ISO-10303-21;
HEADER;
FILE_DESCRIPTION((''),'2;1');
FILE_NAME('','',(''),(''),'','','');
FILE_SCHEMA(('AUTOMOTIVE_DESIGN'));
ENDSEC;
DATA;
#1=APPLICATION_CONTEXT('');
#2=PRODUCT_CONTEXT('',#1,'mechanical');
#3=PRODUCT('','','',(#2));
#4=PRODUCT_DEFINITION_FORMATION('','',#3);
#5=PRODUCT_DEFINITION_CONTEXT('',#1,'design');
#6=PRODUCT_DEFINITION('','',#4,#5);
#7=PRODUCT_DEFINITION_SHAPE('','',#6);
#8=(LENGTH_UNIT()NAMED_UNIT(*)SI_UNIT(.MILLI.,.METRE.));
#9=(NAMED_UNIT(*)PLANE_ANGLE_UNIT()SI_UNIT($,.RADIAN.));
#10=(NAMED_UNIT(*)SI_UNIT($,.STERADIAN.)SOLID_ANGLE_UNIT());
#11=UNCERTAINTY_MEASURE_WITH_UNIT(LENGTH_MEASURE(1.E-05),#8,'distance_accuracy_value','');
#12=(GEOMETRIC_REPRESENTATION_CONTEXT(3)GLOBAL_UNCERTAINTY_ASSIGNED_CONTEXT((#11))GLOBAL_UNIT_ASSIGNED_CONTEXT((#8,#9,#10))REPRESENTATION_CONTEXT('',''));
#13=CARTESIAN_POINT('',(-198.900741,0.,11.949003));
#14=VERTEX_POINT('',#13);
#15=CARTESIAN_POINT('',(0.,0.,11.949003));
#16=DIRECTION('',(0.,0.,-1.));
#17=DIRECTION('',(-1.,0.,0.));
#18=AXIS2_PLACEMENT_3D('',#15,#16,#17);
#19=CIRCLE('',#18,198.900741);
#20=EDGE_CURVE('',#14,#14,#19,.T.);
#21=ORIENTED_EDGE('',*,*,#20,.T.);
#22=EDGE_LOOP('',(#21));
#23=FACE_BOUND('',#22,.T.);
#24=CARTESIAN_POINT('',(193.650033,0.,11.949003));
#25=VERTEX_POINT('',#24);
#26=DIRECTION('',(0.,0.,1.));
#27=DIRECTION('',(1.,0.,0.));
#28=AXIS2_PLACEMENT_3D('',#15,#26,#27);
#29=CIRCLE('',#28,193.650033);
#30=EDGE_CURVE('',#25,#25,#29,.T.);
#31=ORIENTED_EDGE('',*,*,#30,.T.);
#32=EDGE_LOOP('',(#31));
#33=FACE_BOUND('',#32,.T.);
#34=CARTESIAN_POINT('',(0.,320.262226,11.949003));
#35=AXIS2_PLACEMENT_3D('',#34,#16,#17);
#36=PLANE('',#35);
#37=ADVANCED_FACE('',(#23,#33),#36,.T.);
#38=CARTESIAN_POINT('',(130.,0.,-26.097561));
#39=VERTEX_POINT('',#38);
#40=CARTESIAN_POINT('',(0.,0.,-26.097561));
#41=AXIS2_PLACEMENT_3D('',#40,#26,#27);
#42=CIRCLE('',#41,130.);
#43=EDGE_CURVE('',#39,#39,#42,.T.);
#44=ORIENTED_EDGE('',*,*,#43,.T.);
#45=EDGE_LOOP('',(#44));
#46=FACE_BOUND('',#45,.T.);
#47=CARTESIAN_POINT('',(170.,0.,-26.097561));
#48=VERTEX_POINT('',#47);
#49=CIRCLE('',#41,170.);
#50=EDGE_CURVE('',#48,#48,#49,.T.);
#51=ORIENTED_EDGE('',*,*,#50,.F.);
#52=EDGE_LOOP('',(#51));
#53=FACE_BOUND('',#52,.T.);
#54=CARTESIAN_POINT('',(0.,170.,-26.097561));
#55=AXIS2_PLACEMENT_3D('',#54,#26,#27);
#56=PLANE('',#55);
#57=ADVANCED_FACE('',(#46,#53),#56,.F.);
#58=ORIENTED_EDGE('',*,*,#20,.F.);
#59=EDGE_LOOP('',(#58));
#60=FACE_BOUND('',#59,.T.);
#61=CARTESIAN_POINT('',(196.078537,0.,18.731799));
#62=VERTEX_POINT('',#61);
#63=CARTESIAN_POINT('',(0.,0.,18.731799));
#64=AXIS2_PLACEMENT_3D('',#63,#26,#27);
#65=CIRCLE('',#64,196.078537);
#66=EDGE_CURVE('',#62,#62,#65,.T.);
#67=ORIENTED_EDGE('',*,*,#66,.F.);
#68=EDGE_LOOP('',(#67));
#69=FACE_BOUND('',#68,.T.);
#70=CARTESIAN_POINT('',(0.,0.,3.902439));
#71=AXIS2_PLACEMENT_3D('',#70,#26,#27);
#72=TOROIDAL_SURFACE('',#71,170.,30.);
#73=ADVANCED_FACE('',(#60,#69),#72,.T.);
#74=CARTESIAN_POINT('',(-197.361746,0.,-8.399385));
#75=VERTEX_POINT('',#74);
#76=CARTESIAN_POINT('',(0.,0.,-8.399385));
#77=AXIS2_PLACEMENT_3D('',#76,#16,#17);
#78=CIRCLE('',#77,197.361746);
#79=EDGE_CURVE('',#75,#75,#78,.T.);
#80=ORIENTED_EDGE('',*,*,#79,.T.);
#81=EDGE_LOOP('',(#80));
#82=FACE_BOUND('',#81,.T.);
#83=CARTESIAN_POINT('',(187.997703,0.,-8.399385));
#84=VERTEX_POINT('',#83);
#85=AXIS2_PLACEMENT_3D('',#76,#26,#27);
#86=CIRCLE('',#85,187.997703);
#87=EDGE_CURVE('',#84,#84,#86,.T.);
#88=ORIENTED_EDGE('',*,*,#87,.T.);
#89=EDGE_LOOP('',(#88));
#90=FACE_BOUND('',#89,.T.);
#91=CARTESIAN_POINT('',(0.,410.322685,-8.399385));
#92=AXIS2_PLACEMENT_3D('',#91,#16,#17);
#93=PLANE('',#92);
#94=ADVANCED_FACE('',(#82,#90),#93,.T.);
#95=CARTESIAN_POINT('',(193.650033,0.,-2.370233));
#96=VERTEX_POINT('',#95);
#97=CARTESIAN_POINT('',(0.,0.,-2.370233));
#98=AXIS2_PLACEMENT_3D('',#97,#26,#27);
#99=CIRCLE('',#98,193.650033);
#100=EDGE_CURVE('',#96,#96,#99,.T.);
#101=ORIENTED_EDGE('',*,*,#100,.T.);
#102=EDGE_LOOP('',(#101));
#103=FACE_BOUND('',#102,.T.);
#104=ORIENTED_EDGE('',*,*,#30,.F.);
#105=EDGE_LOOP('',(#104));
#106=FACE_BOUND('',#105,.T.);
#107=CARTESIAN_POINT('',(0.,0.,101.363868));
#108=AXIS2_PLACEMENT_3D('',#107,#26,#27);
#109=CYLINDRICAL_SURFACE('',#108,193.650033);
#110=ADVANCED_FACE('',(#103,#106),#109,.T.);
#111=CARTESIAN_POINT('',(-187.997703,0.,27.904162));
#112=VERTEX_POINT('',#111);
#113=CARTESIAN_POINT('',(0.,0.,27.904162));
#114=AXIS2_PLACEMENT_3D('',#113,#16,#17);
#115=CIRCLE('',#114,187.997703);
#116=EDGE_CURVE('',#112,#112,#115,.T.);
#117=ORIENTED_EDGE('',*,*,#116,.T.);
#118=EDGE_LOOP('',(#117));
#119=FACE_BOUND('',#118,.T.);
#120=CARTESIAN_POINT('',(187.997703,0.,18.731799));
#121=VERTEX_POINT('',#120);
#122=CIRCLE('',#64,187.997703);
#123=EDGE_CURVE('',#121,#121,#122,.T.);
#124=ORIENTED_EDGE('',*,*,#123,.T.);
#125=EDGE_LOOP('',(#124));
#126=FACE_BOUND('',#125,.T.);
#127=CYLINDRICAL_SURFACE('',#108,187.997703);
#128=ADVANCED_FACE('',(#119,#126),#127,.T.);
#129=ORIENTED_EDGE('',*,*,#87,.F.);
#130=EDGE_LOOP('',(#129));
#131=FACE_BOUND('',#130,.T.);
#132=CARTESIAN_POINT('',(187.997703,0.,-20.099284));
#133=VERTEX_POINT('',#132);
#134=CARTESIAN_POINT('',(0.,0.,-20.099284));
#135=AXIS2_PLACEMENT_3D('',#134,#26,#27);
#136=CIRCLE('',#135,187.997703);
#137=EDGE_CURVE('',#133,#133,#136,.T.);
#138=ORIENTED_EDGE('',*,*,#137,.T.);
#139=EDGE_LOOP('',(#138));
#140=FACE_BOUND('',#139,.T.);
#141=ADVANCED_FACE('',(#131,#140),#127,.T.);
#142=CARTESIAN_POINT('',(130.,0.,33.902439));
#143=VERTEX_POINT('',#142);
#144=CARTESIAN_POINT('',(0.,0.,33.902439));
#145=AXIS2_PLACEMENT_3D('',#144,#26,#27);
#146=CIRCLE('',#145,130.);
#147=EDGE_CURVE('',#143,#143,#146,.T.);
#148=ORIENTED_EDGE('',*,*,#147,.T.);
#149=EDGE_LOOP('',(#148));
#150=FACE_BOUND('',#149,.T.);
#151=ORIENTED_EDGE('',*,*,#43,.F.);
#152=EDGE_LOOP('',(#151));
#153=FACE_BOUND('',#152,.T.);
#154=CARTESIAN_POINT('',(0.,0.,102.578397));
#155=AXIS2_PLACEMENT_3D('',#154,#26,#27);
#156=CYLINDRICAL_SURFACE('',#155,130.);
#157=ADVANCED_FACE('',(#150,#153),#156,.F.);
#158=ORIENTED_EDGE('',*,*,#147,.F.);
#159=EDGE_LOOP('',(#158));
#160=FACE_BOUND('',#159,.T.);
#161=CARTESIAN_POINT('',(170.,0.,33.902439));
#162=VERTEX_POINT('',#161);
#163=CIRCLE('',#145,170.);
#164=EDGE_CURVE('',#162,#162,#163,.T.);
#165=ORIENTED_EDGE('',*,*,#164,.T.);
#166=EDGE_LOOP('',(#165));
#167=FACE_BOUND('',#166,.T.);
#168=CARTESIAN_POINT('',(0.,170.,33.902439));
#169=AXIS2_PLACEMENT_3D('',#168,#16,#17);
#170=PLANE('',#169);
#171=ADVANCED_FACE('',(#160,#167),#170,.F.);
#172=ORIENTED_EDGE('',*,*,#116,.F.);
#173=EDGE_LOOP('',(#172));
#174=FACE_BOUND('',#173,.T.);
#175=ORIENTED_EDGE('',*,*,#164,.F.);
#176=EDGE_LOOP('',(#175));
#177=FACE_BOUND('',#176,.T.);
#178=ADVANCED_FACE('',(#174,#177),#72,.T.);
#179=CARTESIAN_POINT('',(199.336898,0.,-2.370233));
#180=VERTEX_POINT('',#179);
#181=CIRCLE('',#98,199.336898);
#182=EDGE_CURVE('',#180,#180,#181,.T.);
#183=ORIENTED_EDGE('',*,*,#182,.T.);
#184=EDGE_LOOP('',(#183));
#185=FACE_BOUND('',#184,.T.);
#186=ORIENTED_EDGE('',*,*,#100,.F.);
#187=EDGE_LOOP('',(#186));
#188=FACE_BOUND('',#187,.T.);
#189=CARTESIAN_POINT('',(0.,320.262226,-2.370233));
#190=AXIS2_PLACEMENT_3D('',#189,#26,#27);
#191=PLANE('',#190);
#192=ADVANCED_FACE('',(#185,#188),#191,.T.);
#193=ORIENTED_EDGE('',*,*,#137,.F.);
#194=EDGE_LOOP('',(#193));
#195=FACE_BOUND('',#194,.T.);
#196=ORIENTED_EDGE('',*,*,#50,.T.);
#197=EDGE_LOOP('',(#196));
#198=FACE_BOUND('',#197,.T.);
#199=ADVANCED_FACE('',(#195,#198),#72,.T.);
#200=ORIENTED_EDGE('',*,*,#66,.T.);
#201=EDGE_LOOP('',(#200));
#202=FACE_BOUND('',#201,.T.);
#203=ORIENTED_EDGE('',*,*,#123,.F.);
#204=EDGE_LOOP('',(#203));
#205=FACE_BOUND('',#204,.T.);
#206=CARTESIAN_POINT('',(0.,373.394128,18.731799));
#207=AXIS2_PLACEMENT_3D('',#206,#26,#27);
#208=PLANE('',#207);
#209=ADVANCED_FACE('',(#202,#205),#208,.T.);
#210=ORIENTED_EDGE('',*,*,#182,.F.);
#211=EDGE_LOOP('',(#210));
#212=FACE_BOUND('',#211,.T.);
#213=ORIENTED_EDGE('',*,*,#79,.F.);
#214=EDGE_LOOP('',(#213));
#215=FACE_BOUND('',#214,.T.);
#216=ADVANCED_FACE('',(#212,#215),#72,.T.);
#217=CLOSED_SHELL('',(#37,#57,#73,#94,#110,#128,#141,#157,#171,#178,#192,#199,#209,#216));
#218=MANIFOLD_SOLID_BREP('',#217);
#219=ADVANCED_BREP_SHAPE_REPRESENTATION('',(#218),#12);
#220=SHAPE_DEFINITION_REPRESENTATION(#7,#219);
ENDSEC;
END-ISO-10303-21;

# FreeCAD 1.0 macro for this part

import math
import FreeCAD as App
import Part
import Sketcher
from FreeCAD import Vector
Q = App.Units.Quantity


def add_polygon(sketch, points):
    """Adds a closed chain of lines whose ends are joined by coincident constraints."""
    first, n = sketch.GeometryCount, len(points)
    for a, b in zip(points, points[1:] + points[:1]):
        sketch.addGeometry(Part.LineSegment(App.Vector(*a, 0), App.Vector(*b, 0)), False)
    for i in range(n):
        sketch.addConstraint(Sketcher.Constraint("Coincident", first + i, 2, first + (i + 1) % n, 1))

doc = App.newDocument("Part")
body = doc.addObject("PartDesign::Body", "Body")

# Sketch on YZ plane
sketch1 = doc.addObject("Sketcher::SketchObject", "Sketch")
body.addObject(sketch1)
sketch1.AttachmentSupport = (doc.YZ_Plane, [""])
sketch1.MapMode = "FlatFace"
sketch1.addGeometry(Part.LineSegment(Vector(170, 34, 0), Vector(130, 34, 0)), False)
sketch1.addGeometry(Part.LineSegment(Vector(130, 34, 0), Vector(130, -26, 0)), False)
sketch1.addGeometry(Part.LineSegment(Vector(130, -26, 0), Vector(170, -26, 0)), False)
sketch1.addGeometry(Part.ArcOfCircle(Part.Circle(Vector(170, 4, 0), Vector(0, 0, 1), 30), math.radians(-90), math.radians(90)), False)
sketch1.addConstraint(Sketcher.Constraint("Coincident", 0, 2, 1, 1))
sketch1.addConstraint(Sketcher.Constraint("Coincident", 1, 2, 2, 1))
sketch1.addConstraint(Sketcher.Constraint("Tangent", 2, 2, 3, 1))
sketch1.addConstraint(Sketcher.Constraint("Tangent", 3, 2, 0, 1))
sketch1.addConstraint(Sketcher.Constraint("Horizontal", 0))
sketch1.addConstraint(Sketcher.Constraint("Vertical", 1))
sketch1.addConstraint(Sketcher.Constraint("Horizontal", 2))
sketch1.addConstraint(Sketcher.Constraint("Radius", 3, Q("30 mm")))
sketch1.addConstraint(Sketcher.Constraint("DistanceX", 0, 2, 0, 1, Q("40 mm")))
sketch1.addConstraint(Sketcher.Constraint("DistanceX", -1, 1, 3, 3, Q("170 mm")))
sketch1.addConstraint(Sketcher.Constraint("DistanceY", -1, 1, 3, 3, Q("3.902439 mm")))
revolution = doc.addObject("PartDesign::Revolution", "Revolution")
body.addObject(revolution)
revolution.Profile = sketch1
revolution.ReferenceAxis = (sketch1, ["V_Axis"])
revolution.Angle = 360

# Sketch on YZ plane
sketch2 = doc.addObject("Sketcher::SketchObject", "Sketch001")
body.addObject(sketch2)
sketch2.AttachmentSupport = (doc.YZ_Plane, [""])
sketch2.MapMode = "FlatFace"
add_polygon(sketch2, [(320, 12), (194, 12), (194, -2), (320, -2)])  # lines 0-3
add_polygon(sketch2, [(373, 49), (188, 49), (188, 19), (373, 19)])  # lines 4-7
add_polygon(sketch2, [(410, -8), (188, -8), (188, -20), (410, -20)])  # lines 8-11
sketch2.addConstraint(Sketcher.Constraint("Horizontal", 0))
sketch2.addConstraint(Sketcher.Constraint("Vertical", 1))
sketch2.addConstraint(Sketcher.Constraint("Horizontal", 2))
sketch2.addConstraint(Sketcher.Constraint("Vertical", 3))
sketch2.addConstraint(Sketcher.Constraint("Horizontal", 4))
sketch2.addConstraint(Sketcher.Constraint("Vertical", 5))
sketch2.addConstraint(Sketcher.Constraint("Horizontal", 6))
sketch2.addConstraint(Sketcher.Constraint("Vertical", 7))
sketch2.addConstraint(Sketcher.Constraint("Horizontal", 8))
sketch2.addConstraint(Sketcher.Constraint("Vertical", 9))
sketch2.addConstraint(Sketcher.Constraint("Horizontal", 10))
sketch2.addConstraint(Sketcher.Constraint("Vertical", 11))
sketch2.addConstraint(Sketcher.Constraint("Vertical", 5, 2, 8, 2))
sketch2.addConstraint(Sketcher.Constraint("DistanceY", 5, 2, 5, 1, Q("30.14576 mm")))
sketch2.addConstraint(Sketcher.Constraint("DistanceY", -1, 1, 5, 2, Q("18.731799 mm")))
sketch2.addConstraint(Sketcher.Constraint("DistanceX", 0, 2, 0, 1, Q("126.612193 mm")))
sketch2.addConstraint(Sketcher.Constraint("DistanceX", 4, 2, 4, 1, Q("185.396426 mm")))
sketch2.addConstraint(Sketcher.Constraint("DistanceX", 8, 2, 8, 1, Q("222.324982 mm")))
sketch2.addConstraint(Sketcher.Constraint("DistanceY", 1, 2, 1, 1, Q("14.319236 mm")))
sketch2.addConstraint(Sketcher.Constraint("DistanceY", 9, 2, 9, 1, Q("12.058304 mm")))
sketch2.addConstraint(Sketcher.Constraint("DistanceX", -1, 1, 6, 2, Q("373.394128 mm")))
sketch2.addConstraint(Sketcher.Constraint("DistanceY", 9, 2, -1, 1, Q("20.457689 mm")))
sketch2.addConstraint(Sketcher.Constraint("DistanceX", 4, 2, 0, 2, Q("5.65233 mm")))
sketch2.addConstraint(Sketcher.Constraint("DistanceY", 8, 2, 0, 2, Q("20.348388 mm")))
groove = doc.addObject("PartDesign::Groove", "Groove")
body.addObject(groove)
groove.Profile = sketch2
groove.ReferenceAxis = (sketch2, ["V_Axis"])
groove.Angle = 360

doc.recompute()
